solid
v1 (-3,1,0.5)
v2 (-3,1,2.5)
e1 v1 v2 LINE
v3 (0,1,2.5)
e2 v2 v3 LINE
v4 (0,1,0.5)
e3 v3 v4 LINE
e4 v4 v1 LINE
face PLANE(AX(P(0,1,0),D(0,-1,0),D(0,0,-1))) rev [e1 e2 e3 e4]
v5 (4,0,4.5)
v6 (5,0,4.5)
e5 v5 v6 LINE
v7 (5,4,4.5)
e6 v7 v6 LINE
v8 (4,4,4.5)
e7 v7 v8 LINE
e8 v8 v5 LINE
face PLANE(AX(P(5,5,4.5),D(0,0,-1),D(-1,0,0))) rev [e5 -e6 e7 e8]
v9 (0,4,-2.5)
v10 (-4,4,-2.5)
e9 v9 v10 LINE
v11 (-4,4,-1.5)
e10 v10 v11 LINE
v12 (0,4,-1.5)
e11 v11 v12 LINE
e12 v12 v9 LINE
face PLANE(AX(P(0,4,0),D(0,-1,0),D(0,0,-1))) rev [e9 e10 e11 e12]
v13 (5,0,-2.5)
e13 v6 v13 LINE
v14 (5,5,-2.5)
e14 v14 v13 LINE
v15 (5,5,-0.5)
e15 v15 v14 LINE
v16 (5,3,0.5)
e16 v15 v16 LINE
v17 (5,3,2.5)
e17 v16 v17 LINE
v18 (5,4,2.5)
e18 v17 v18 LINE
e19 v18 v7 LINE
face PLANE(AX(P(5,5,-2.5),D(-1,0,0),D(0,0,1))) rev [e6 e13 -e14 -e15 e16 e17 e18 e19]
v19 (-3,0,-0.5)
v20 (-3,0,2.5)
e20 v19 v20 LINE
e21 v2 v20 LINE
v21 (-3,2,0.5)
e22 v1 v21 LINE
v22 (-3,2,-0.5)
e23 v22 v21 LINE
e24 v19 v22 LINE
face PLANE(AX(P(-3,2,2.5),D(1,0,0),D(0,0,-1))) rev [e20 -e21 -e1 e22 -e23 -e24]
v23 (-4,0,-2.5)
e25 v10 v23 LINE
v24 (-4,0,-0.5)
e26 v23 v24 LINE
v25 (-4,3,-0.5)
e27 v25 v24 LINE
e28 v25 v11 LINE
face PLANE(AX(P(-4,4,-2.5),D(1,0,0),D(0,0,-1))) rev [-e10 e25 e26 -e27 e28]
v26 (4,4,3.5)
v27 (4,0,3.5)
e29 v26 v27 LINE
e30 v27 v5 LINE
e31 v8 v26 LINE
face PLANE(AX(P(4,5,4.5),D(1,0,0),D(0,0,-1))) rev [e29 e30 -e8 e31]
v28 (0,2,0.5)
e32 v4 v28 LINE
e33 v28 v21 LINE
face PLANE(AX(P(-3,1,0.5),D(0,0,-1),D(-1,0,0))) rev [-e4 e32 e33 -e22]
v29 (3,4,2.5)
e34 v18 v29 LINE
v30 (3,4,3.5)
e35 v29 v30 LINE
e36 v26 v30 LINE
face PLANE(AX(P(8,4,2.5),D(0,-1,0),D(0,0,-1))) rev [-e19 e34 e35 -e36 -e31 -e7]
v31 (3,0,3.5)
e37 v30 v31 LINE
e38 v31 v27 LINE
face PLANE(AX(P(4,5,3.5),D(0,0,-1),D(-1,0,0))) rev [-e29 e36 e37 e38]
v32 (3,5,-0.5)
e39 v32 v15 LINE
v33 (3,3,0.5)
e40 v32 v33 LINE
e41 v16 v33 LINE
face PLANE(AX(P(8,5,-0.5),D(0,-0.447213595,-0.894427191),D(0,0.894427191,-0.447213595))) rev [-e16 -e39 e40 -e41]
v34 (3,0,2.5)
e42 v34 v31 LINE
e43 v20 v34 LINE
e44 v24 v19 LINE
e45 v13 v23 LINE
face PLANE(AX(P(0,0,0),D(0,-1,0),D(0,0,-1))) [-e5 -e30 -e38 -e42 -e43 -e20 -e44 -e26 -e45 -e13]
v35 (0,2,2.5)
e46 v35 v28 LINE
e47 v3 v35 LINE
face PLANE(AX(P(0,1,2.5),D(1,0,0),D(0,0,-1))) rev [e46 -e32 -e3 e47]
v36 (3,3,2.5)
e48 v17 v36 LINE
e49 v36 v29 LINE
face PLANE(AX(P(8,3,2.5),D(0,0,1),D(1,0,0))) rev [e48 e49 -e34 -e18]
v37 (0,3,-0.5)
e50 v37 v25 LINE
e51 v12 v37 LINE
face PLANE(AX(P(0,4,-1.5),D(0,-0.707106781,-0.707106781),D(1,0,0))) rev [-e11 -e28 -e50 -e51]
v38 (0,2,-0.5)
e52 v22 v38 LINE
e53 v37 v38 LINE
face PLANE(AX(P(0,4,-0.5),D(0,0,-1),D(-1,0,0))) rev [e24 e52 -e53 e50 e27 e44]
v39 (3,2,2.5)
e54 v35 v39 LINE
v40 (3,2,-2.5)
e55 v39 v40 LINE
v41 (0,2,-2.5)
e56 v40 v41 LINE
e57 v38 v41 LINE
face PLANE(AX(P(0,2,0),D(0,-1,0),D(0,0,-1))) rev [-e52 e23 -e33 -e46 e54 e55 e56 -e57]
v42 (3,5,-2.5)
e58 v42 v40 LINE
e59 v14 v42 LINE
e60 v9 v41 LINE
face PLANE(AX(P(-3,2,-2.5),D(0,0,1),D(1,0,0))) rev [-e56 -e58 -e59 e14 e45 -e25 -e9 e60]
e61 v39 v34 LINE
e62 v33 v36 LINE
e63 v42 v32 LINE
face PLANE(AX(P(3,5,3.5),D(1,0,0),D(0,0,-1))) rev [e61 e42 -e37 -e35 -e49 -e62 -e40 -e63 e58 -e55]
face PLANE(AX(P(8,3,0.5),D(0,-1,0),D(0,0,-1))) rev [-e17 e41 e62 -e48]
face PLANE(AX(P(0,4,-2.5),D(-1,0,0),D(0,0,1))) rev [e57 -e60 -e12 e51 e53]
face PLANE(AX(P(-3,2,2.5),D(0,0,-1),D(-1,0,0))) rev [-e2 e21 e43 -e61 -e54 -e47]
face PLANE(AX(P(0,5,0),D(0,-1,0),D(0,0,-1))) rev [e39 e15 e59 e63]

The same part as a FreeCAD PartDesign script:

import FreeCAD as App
import Part
import Sketcher
from FreeCAD import Vector


def edges_at(feature, points):
    """Names of the edges that pass closest to the given points."""
    edges = feature.Shape.Edges
    near = lambda p: min(range(len(edges)), key=lambda i: edges[i].distToShape(Part.Vertex(*p))[0])
    return sorted({f"Edge{near(p) + 1}" for p in points})

doc = App.newDocument("Part")
body = doc.addObject("PartDesign::Body", "Body")

sketch1 = body.newObject("Sketcher::SketchObject", "Sketch")
sketch1.AttachmentSupport = (doc.getObject("XZ_Plane"), [""])
sketch1.MapMode = "FlatFace"
sketch1.addGeometry([
    Part.LineSegment(Vector(-3, -2.5, 0), Vector(-3, 2.5, 0)),
    Part.LineSegment(Vector(-3, 2.5, 0), Vector(3, 2.5, 0)),
    Part.LineSegment(Vector(3, 2.5, 0), Vector(3, -2.5, 0)),
    Part.LineSegment(Vector(3, -2.5, 0), Vector(-3, -2.5, 0)),
], False)
sketch1.addConstraint([
    Sketcher.Constraint("Coincident", 0, 2, 1, 1),
    Sketcher.Constraint("Coincident", 1, 2, 2, 1),
    Sketcher.Constraint("Coincident", 2, 2, 3, 1),
    Sketcher.Constraint("Coincident", 3, 2, 0, 1),
    Sketcher.Constraint("Vertical", 0),
    Sketcher.Constraint("Horizontal", 1),
    Sketcher.Constraint("Vertical", 2),
    Sketcher.Constraint("Horizontal", 3),
    Sketcher.Constraint("Symmetric", 0, 2, 2, 2, -1, 1),
    Sketcher.Constraint("DistanceX", 1, 1, 1, 2, 6.0),
    Sketcher.Constraint("DistanceY", 0, 1, 0, 2, 5.0),
])
pad1 = body.newObject("PartDesign::Pad", "Pad")
pad1.Profile = sketch1
pad1.Length = 2
pad1.Reversed = True

sketch2 = body.newObject("Sketcher::SketchObject", "Sketch001")
sketch2.AttachmentSupport = (doc.getObject("XZ_Plane"), [""])
sketch2.MapMode = "FlatFace"
sketch2.addGeometry([
    Part.LineSegment(Vector(-4, -2.5, 0), Vector(-4, -0.5, 0)),
    Part.LineSegment(Vector(-4, -0.5, 0), Vector(0, -0.5, 0)),
    Part.LineSegment(Vector(0, -0.5, 0), Vector(0, -2.5, 0)),
    Part.LineSegment(Vector(0, -2.5, 0), Vector(-4, -2.5, 0)),
], False)
sketch2.addConstraint([
    Sketcher.Constraint("Coincident", 0, 2, 1, 1),
    Sketcher.Constraint("Coincident", 1, 2, 2, 1),
    Sketcher.Constraint("Coincident", 2, 2, 3, 1),
    Sketcher.Constraint("Coincident", 3, 2, 0, 1),
    Sketcher.Constraint("Vertical", 0),
    Sketcher.Constraint("Horizontal", 1),
    Sketcher.Constraint("Vertical", 2),
    Sketcher.Constraint("Horizontal", 3),
    Sketcher.Constraint("PointOnObject", 1, 2, -2),
    Sketcher.Constraint("DistanceX", 1, 1, 1, 2, 4.0),
    Sketcher.Constraint("DistanceY", 0, 1, 0, 2, 2.0),
    Sketcher.Constraint("DistanceY", 0, 2, -1, 1, 0.5),
])
pad2 = body.newObject("PartDesign::Pad", "Pad001")
pad2.Profile = sketch2
pad2.Length = 4
pad2.Reversed = True
doc.recompute()

chamfer = body.newObject("PartDesign::Chamfer", "Chamfer")
chamfer.Base = (pad2, edges_at(pad2, [(-2, 4, -0.5)]))
chamfer.Size = 1

sketch3 = body.newObject("Sketcher::SketchObject", "Sketch002")
sketch3.AttachmentSupport = (doc.getObject("XZ_Plane"), [""])
sketch3.MapMode = "FlatFace"
sketch3.addGeometry([
    Part.LineSegment(Vector(5, -2.5, 0), Vector(3, -2.5, 0)),
    Part.LineSegment(Vector(3, -2.5, 0), Vector(3, 3.5, 0)),
    Part.LineSegment(Vector(3, 3.5, 0), Vector(4, 3.5, 0)),
    Part.LineSegment(Vector(4, 3.5, 0), Vector(4, 4.5, 0)),
    Part.LineSegment(Vector(4, 4.5, 0), Vector(5, 4.5, 0)),
    Part.LineSegment(Vector(5, 4.5, 0), Vector(5, -2.5, 0)),
], False)
sketch3.addConstraint([
    Sketcher.Constraint("Coincident", 0, 2, 1, 1),
    Sketcher.Constraint("Coincident", 1, 2, 2, 1),
    Sketcher.Constraint("Coincident", 2, 2, 3, 1),
    Sketcher.Constraint("Coincident", 3, 2, 4, 1),
    Sketcher.Constraint("Coincident", 4, 2, 5, 1),
    Sketcher.Constraint("Coincident", 5, 2, 0, 1),
    Sketcher.Constraint("Horizontal", 0),
    Sketcher.Constraint("Vertical", 1),
    Sketcher.Constraint("Horizontal", 2),
    Sketcher.Constraint("Vertical", 3),
    Sketcher.Constraint("Horizontal", 4),
    Sketcher.Constraint("Vertical", 5),
    Sketcher.Constraint("Equal", 2, 4),
    Sketcher.Constraint("Equal", 4, 3),
    Sketcher.Constraint("DistanceX", 0, 2, 0, 1, 2.0),
    Sketcher.Constraint("DistanceY", 1, 1, 1, 2, 6.0),
    Sketcher.Constraint("DistanceX", -1, 1, 0, 2, 3.0),
    Sketcher.Constraint("DistanceY", 0, 2, -1, 1, 2.5),
])
pad3 = body.newObject("PartDesign::Pad", "Pad002")
pad3.Profile = sketch3
pad3.Length = 5
pad3.Reversed = True

sketch4 = body.newObject("Sketcher::SketchObject", "Sketch003")
sketch4.AttachmentSupport = (doc.getObject("YZ_Plane"), [""])
sketch4.MapMode = "FlatFace"
sketch4.AttachmentOffset = App.Placement(Vector(0, 0, 3), App.Rotation())
sketch4.addGeometry([
    Part.LineSegment(Vector(5, -0.5, 0), Vector(3, 0.5, 0)),
    Part.LineSegment(Vector(3, 0.5, 0), Vector(3, 2.5, 0)),
    Part.LineSegment(Vector(3, 2.5, 0), Vector(4, 2.5, 0)),
    Part.LineSegment(Vector(4, 2.5, 0), Vector(4, 5.863314, 0)),
    Part.LineSegment(Vector(4, 5.863314, 0), Vector(5.536679, 5.863314, 0)),
    Part.LineSegment(Vector(5.536679, 5.863314, 0), Vector(5, -0.5, 0)),
], False)
sketch4.addConstraint([
    Sketcher.Constraint("Coincident", 0, 2, 1, 1),
    Sketcher.Constraint("Coincident", 1, 2, 2, 1),
    Sketcher.Constraint("Coincident", 2, 2, 3, 1),
    Sketcher.Constraint("Coincident", 3, 2, 4, 1),
    Sketcher.Constraint("Coincident", 4, 2, 5, 1),
    Sketcher.Constraint("Coincident", 5, 2, 0, 1),
    Sketcher.Constraint("Vertical", 1),
    Sketcher.Constraint("Horizontal", 2),
    Sketcher.Constraint("Vertical", 3),
    Sketcher.Constraint("Horizontal", 4),
    Sketcher.Constraint("DistanceX", 2, 1, 2, 2, 1.0),
    Sketcher.Constraint("DistanceY", 1, 1, 1, 2, 2.0),
    Sketcher.Constraint("DistanceX", -1, 1, 0, 2, 3.0),
    Sketcher.Constraint("DistanceX", -1, 1, 5, 2, 5.0),
    Sketcher.Constraint("DistanceY", 5, 2, 0, 2, 1.0),
    Sketcher.Constraint("DistanceY", -1, 1, 0, 2, 0.5),
    Sketcher.Constraint("DistanceX", 4, 1, 4, 2, 1.536679),
    Sketcher.Constraint("DistanceY", 3, 1, 3, 2, 3.363314),
])
pocket1 = body.newObject("PartDesign::Pocket", "Pocket")
pocket1.Profile = sketch4
pocket1.Length = 5
pocket1.Reversed = True

sketch5 = body.newObject("Sketcher::SketchObject", "Sketch004")
sketch5.AttachmentSupport = (doc.getObject("XZ_Plane"), [""])
sketch5.MapMode = "FlatFace"
sketch5.AttachmentOffset = App.Placement(Vector(0, 0, -2), App.Rotation())
sketch5.addGeometry([
    Part.LineSegment(Vector(-3, 0.5, 0), Vector(-3, 2.5, 0)),
    Part.LineSegment(Vector(-3, 2.5, 0), Vector(0, 2.5, 0)),
    Part.LineSegment(Vector(0, 2.5, 0), Vector(0, 0.5, 0)),
    Part.LineSegment(Vector(0, 0.5, 0), Vector(-3, 0.5, 0)),
], False)
sketch5.addConstraint([
    Sketcher.Constraint("Coincident", 0, 2, 1, 1),
    Sketcher.Constraint("Coincident", 1, 2, 2, 1),
    Sketcher.Constraint("Coincident", 2, 2, 3, 1),
    Sketcher.Constraint("Coincident", 3, 2, 0, 1),
    Sketcher.Constraint("Vertical", 0),
    Sketcher.Constraint("Horizontal", 1),
    Sketcher.Constraint("Vertical", 2),
    Sketcher.Constraint("Horizontal", 3),
    Sketcher.Constraint("PointOnObject", 1, 2, -2),
    Sketcher.Constraint("DistanceX", 1, 1, 1, 2, 3.0),
    Sketcher.Constraint("DistanceY", 0, 1, 0, 2, 2.0),
    Sketcher.Constraint("DistanceY", -1, 1, 0, 2, 2.5),
])
pocket2 = body.newObject("PartDesign::Pocket", "Pocket001")
pocket2.Profile = sketch5
pocket2.Length = 1
pocket2.Reversed = True

doc.recompute()
